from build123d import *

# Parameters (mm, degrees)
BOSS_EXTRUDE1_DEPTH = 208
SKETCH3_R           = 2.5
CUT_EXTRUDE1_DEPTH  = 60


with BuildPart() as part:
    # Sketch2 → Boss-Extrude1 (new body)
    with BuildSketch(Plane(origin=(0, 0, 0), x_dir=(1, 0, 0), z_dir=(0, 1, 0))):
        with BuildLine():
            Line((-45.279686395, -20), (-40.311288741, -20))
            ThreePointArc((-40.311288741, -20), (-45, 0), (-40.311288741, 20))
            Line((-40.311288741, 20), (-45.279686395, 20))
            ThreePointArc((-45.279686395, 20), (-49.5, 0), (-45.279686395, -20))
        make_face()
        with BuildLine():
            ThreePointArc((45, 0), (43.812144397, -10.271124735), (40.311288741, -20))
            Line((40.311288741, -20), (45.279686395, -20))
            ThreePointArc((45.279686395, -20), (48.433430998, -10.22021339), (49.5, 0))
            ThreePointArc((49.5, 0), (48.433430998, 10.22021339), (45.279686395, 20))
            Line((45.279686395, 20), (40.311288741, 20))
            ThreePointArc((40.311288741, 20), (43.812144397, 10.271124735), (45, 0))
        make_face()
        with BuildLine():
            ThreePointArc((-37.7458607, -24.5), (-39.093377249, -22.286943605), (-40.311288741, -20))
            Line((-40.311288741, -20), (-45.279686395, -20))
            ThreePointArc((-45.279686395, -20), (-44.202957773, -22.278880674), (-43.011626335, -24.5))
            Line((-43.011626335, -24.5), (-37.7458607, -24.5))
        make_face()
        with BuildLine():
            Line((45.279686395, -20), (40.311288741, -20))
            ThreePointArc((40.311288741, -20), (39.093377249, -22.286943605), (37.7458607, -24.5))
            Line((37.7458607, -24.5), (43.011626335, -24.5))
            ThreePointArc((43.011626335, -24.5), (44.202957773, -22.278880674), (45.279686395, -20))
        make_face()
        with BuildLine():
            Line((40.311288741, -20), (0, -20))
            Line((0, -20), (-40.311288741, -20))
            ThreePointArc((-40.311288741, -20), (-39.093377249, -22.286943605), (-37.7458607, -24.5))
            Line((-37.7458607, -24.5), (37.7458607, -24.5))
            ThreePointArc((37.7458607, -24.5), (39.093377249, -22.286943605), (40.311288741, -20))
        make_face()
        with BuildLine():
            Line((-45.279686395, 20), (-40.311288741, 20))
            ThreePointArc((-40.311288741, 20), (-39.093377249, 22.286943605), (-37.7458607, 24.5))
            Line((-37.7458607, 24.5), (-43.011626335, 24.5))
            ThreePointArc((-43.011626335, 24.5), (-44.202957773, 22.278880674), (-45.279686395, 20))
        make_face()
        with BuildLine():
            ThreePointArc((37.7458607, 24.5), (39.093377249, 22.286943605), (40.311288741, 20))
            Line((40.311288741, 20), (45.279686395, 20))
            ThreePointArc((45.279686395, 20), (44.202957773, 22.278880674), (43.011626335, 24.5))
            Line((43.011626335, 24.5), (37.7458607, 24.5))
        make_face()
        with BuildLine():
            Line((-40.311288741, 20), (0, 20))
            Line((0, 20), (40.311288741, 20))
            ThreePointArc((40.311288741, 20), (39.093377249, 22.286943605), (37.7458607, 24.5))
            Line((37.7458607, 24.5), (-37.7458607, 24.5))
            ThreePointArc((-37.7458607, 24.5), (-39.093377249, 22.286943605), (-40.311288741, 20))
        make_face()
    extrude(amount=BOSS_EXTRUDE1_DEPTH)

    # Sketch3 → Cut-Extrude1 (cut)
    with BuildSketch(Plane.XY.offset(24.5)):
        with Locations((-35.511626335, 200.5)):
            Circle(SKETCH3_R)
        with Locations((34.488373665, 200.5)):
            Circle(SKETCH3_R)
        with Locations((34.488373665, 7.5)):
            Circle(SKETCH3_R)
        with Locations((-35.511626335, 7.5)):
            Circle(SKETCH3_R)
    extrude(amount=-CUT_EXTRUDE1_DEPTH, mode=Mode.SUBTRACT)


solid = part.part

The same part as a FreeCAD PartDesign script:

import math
import FreeCAD as App
import Part
import Sketcher
from FreeCAD import Vector
Q = App.Units.Quantity

doc = App.newDocument("Part")
body = doc.addObject("PartDesign::Body", "Body")

# Sketch on XZ plane
sketch1 = body.newObject("Sketcher::SketchObject", "Sketch")
sketch1.AttachmentSupport = (doc.getObject("XZ_Plane"), [""])
sketch1.MapMode = "FlatFace"
sketch1.addGeometry([
    Part.ArcOfCircle(Part.Circle(Vector(0, 0, 0), Vector(0, 0, 1), 50), math.radians(-29.67), math.radians(-23.83)),  # 0
    Part.LineSegment(Vector(43, -24, 0), Vector(-43, -24, 0)),  # 1
    Part.ArcOfCircle(Part.Circle(Vector(0, 0, 0), Vector(0, 0, 1), 50), math.radians(-156.17), math.radians(-150.33)),  # 2
    Part.ArcOfCircle(Part.Circle(Vector(0, 0, 0), Vector(0, 0, 1), 50), math.radians(156), math.radians(204)),  # 3
    Part.ArcOfCircle(Part.Circle(Vector(0, 0, 0), Vector(0, 0, 1), 50), math.radians(150.33), math.radians(156.17)),  # 4
    Part.LineSegment(Vector(-43, 24, 0), Vector(43, 24, 0)),  # 5
    Part.ArcOfCircle(Part.Circle(Vector(0, 0, 0), Vector(0, 0, 1), 50), math.radians(23.83), math.radians(29.67)),  # 6
    Part.ArcOfCircle(Part.Circle(Vector(0, 0, 0), Vector(0, 0, 1), 50), math.radians(0), math.radians(24)),  # 7
    Part.ArcOfCircle(Part.Circle(Vector(0, 0, 0), Vector(0, 0, 1), 50), math.radians(-24), math.radians(0)),  # 8
    Part.ArcOfCircle(Part.Circle(Vector(0, 0, 0), Vector(0, 0, 1), 45), math.radians(0), math.radians(26)),  # 9
    Part.LineSegment(Vector(40, 20, 0), Vector(-40, 20, 0)),  # 10
    Part.ArcOfCircle(Part.Circle(Vector(0, 0, 0), Vector(0, 0, 1), 45), math.radians(154), math.radians(206)),  # 11
    Part.LineSegment(Vector(-40, -20, 0), Vector(40, -20, 0)),  # 12
    Part.ArcOfCircle(Part.Circle(Vector(0, 0, 0), Vector(0, 0, 1), 45), math.radians(-26), math.radians(0)),  # 13
], False)
sketch1.addConstraint([
    Sketcher.Constraint("Coincident", 0, 1, 1, 1),
    Sketcher.Constraint("Coincident", 1, 2, 2, 2),
    Sketcher.Constraint("Tangent", 2, 1, 3, 2),
    Sketcher.Constraint("Tangent", 3, 1, 4, 2),
    Sketcher.Constraint("Coincident", 4, 1, 5, 1),
    Sketcher.Constraint("Coincident", 5, 2, 6, 2),
    Sketcher.Constraint("Tangent", 6, 1, 7, 2),
    Sketcher.Constraint("Tangent", 7, 1, 8, 2),
    Sketcher.Constraint("Tangent", 8, 1, 0, 2),
    Sketcher.Constraint("Coincident", 9, 2, 10, 1),
    Sketcher.Constraint("Coincident", 10, 2, 11, 1),
    Sketcher.Constraint("Coincident", 11, 2, 12, 1),
    Sketcher.Constraint("Coincident", 12, 2, 13, 1),
    Sketcher.Constraint("Tangent", 13, 2, 9, 1),
    Sketcher.Constraint("Horizontal", 1),
    Sketcher.Constraint("Horizontal", 5),
    Sketcher.Constraint("Horizontal", 10),
    Sketcher.Constraint("Horizontal", 12),
    Sketcher.Constraint("Coincident", 0, 3, -1, 1),
    Sketcher.Constraint("Coincident", 2, 3, -1, 1),
    Sketcher.Constraint("Coincident", 4, 3, -1, 1),
    Sketcher.Constraint("Coincident", 6, 3, -1, 1),
    Sketcher.Constraint("Coincident", 9, 3, -1, 1),
    Sketcher.Constraint("Coincident", 11, 3, -1, 1),
    Sketcher.Constraint("Equal", 0, 2),
    Sketcher.Constraint("Equal", 4, 6),
    Sketcher.Constraint("Equal", 9, 11),
    Sketcher.Constraint("Equal", 11, 13),
    Sketcher.Constraint("PointOnObject", 7, 1, -1),
    Sketcher.Constraint("PointOnObject", 13, 2, -1),
    Sketcher.Constraint("Horizontal", 3, 1, 6, 1),
    Sketcher.Constraint("Horizontal", 2, 1, 8, 1),
    Sketcher.Constraint("Horizontal", 6, 1, 9, 2),
    Sketcher.Constraint("Horizontal", 8, 1, 11, 2),
    Sketcher.Constraint("Vertical", 2, 1, 3, 1),
    Sketcher.Constraint("Vertical", 1, 2, 4, 1),
    Sketcher.Constraint("Radius", 9, Q("45 mm")),
    Sketcher.Constraint("Radius", 0, Q("49.5 mm")),
    Sketcher.Constraint("DistanceY", 2, 1, -1, 1, Q("20 mm")),
    Sketcher.Constraint("DistanceY", 1, 2, 4, 1, Q("49 mm")),
])
pad1 = body.newObject("PartDesign::Pad", "Pad")
pad1.Profile = sketch1
pad1.Length = 208
pad1.Reversed = True

# Sketch on XY plane
sketch2 = body.newObject("Sketcher::SketchObject", "Sketch001")
sketch2.AttachmentSupport = (doc.getObject("XY_Plane"), [""])
sketch2.MapMode = "FlatFace"
sketch2.AttachmentOffset = App.Placement(Vector(0, 0, 24.5), App.Rotation())
sketch2.addGeometry([
    Part.Circle(Vector(-35.5, 200.5, 0), Vector(0, 0, 1), 2.5),
    Part.Circle(Vector(34.5, 200.5, 0), Vector(0, 0, 1), 2.5),
    Part.Circle(Vector(34.5, 7.5, 0), Vector(0, 0, 1), 2.5),
    Part.Circle(Vector(-35.5, 7.5, 0), Vector(0, 0, 1), 2.5),
], False)
sketch2.addConstraint([
    Sketcher.Constraint("Equal", 0, 1),
    Sketcher.Constraint("Equal", 1, 2),
    Sketcher.Constraint("Equal", 2, 3),
    Sketcher.Constraint("Horizontal", 0, 3, 1, 3),
    Sketcher.Constraint("Horizontal", 2, 3, 3, 3),
    Sketcher.Constraint("Vertical", 1, 3, 2, 3),
    Sketcher.Constraint("Vertical", 0, 3, 3, 3),
    Sketcher.Constraint("Diameter", 0, Q("5 mm")),
    Sketcher.Constraint("DistanceX", 0, 3, 1, 3, Q("70 mm")),
    Sketcher.Constraint("DistanceY", 2, 3, 1, 3, Q("193 mm")),
    Sketcher.Constraint("DistanceY", -1, 1, 0, 3, Q("200.5 mm")),
    Sketcher.Constraint("DistanceX", 0, 3, -1, 1, Q("35.511626 mm")),
])
pocket1 = body.newObject("PartDesign::Pocket", "Pocket")
pocket1.Profile = sketch2
pocket1.Length = 60

doc.recompute()
